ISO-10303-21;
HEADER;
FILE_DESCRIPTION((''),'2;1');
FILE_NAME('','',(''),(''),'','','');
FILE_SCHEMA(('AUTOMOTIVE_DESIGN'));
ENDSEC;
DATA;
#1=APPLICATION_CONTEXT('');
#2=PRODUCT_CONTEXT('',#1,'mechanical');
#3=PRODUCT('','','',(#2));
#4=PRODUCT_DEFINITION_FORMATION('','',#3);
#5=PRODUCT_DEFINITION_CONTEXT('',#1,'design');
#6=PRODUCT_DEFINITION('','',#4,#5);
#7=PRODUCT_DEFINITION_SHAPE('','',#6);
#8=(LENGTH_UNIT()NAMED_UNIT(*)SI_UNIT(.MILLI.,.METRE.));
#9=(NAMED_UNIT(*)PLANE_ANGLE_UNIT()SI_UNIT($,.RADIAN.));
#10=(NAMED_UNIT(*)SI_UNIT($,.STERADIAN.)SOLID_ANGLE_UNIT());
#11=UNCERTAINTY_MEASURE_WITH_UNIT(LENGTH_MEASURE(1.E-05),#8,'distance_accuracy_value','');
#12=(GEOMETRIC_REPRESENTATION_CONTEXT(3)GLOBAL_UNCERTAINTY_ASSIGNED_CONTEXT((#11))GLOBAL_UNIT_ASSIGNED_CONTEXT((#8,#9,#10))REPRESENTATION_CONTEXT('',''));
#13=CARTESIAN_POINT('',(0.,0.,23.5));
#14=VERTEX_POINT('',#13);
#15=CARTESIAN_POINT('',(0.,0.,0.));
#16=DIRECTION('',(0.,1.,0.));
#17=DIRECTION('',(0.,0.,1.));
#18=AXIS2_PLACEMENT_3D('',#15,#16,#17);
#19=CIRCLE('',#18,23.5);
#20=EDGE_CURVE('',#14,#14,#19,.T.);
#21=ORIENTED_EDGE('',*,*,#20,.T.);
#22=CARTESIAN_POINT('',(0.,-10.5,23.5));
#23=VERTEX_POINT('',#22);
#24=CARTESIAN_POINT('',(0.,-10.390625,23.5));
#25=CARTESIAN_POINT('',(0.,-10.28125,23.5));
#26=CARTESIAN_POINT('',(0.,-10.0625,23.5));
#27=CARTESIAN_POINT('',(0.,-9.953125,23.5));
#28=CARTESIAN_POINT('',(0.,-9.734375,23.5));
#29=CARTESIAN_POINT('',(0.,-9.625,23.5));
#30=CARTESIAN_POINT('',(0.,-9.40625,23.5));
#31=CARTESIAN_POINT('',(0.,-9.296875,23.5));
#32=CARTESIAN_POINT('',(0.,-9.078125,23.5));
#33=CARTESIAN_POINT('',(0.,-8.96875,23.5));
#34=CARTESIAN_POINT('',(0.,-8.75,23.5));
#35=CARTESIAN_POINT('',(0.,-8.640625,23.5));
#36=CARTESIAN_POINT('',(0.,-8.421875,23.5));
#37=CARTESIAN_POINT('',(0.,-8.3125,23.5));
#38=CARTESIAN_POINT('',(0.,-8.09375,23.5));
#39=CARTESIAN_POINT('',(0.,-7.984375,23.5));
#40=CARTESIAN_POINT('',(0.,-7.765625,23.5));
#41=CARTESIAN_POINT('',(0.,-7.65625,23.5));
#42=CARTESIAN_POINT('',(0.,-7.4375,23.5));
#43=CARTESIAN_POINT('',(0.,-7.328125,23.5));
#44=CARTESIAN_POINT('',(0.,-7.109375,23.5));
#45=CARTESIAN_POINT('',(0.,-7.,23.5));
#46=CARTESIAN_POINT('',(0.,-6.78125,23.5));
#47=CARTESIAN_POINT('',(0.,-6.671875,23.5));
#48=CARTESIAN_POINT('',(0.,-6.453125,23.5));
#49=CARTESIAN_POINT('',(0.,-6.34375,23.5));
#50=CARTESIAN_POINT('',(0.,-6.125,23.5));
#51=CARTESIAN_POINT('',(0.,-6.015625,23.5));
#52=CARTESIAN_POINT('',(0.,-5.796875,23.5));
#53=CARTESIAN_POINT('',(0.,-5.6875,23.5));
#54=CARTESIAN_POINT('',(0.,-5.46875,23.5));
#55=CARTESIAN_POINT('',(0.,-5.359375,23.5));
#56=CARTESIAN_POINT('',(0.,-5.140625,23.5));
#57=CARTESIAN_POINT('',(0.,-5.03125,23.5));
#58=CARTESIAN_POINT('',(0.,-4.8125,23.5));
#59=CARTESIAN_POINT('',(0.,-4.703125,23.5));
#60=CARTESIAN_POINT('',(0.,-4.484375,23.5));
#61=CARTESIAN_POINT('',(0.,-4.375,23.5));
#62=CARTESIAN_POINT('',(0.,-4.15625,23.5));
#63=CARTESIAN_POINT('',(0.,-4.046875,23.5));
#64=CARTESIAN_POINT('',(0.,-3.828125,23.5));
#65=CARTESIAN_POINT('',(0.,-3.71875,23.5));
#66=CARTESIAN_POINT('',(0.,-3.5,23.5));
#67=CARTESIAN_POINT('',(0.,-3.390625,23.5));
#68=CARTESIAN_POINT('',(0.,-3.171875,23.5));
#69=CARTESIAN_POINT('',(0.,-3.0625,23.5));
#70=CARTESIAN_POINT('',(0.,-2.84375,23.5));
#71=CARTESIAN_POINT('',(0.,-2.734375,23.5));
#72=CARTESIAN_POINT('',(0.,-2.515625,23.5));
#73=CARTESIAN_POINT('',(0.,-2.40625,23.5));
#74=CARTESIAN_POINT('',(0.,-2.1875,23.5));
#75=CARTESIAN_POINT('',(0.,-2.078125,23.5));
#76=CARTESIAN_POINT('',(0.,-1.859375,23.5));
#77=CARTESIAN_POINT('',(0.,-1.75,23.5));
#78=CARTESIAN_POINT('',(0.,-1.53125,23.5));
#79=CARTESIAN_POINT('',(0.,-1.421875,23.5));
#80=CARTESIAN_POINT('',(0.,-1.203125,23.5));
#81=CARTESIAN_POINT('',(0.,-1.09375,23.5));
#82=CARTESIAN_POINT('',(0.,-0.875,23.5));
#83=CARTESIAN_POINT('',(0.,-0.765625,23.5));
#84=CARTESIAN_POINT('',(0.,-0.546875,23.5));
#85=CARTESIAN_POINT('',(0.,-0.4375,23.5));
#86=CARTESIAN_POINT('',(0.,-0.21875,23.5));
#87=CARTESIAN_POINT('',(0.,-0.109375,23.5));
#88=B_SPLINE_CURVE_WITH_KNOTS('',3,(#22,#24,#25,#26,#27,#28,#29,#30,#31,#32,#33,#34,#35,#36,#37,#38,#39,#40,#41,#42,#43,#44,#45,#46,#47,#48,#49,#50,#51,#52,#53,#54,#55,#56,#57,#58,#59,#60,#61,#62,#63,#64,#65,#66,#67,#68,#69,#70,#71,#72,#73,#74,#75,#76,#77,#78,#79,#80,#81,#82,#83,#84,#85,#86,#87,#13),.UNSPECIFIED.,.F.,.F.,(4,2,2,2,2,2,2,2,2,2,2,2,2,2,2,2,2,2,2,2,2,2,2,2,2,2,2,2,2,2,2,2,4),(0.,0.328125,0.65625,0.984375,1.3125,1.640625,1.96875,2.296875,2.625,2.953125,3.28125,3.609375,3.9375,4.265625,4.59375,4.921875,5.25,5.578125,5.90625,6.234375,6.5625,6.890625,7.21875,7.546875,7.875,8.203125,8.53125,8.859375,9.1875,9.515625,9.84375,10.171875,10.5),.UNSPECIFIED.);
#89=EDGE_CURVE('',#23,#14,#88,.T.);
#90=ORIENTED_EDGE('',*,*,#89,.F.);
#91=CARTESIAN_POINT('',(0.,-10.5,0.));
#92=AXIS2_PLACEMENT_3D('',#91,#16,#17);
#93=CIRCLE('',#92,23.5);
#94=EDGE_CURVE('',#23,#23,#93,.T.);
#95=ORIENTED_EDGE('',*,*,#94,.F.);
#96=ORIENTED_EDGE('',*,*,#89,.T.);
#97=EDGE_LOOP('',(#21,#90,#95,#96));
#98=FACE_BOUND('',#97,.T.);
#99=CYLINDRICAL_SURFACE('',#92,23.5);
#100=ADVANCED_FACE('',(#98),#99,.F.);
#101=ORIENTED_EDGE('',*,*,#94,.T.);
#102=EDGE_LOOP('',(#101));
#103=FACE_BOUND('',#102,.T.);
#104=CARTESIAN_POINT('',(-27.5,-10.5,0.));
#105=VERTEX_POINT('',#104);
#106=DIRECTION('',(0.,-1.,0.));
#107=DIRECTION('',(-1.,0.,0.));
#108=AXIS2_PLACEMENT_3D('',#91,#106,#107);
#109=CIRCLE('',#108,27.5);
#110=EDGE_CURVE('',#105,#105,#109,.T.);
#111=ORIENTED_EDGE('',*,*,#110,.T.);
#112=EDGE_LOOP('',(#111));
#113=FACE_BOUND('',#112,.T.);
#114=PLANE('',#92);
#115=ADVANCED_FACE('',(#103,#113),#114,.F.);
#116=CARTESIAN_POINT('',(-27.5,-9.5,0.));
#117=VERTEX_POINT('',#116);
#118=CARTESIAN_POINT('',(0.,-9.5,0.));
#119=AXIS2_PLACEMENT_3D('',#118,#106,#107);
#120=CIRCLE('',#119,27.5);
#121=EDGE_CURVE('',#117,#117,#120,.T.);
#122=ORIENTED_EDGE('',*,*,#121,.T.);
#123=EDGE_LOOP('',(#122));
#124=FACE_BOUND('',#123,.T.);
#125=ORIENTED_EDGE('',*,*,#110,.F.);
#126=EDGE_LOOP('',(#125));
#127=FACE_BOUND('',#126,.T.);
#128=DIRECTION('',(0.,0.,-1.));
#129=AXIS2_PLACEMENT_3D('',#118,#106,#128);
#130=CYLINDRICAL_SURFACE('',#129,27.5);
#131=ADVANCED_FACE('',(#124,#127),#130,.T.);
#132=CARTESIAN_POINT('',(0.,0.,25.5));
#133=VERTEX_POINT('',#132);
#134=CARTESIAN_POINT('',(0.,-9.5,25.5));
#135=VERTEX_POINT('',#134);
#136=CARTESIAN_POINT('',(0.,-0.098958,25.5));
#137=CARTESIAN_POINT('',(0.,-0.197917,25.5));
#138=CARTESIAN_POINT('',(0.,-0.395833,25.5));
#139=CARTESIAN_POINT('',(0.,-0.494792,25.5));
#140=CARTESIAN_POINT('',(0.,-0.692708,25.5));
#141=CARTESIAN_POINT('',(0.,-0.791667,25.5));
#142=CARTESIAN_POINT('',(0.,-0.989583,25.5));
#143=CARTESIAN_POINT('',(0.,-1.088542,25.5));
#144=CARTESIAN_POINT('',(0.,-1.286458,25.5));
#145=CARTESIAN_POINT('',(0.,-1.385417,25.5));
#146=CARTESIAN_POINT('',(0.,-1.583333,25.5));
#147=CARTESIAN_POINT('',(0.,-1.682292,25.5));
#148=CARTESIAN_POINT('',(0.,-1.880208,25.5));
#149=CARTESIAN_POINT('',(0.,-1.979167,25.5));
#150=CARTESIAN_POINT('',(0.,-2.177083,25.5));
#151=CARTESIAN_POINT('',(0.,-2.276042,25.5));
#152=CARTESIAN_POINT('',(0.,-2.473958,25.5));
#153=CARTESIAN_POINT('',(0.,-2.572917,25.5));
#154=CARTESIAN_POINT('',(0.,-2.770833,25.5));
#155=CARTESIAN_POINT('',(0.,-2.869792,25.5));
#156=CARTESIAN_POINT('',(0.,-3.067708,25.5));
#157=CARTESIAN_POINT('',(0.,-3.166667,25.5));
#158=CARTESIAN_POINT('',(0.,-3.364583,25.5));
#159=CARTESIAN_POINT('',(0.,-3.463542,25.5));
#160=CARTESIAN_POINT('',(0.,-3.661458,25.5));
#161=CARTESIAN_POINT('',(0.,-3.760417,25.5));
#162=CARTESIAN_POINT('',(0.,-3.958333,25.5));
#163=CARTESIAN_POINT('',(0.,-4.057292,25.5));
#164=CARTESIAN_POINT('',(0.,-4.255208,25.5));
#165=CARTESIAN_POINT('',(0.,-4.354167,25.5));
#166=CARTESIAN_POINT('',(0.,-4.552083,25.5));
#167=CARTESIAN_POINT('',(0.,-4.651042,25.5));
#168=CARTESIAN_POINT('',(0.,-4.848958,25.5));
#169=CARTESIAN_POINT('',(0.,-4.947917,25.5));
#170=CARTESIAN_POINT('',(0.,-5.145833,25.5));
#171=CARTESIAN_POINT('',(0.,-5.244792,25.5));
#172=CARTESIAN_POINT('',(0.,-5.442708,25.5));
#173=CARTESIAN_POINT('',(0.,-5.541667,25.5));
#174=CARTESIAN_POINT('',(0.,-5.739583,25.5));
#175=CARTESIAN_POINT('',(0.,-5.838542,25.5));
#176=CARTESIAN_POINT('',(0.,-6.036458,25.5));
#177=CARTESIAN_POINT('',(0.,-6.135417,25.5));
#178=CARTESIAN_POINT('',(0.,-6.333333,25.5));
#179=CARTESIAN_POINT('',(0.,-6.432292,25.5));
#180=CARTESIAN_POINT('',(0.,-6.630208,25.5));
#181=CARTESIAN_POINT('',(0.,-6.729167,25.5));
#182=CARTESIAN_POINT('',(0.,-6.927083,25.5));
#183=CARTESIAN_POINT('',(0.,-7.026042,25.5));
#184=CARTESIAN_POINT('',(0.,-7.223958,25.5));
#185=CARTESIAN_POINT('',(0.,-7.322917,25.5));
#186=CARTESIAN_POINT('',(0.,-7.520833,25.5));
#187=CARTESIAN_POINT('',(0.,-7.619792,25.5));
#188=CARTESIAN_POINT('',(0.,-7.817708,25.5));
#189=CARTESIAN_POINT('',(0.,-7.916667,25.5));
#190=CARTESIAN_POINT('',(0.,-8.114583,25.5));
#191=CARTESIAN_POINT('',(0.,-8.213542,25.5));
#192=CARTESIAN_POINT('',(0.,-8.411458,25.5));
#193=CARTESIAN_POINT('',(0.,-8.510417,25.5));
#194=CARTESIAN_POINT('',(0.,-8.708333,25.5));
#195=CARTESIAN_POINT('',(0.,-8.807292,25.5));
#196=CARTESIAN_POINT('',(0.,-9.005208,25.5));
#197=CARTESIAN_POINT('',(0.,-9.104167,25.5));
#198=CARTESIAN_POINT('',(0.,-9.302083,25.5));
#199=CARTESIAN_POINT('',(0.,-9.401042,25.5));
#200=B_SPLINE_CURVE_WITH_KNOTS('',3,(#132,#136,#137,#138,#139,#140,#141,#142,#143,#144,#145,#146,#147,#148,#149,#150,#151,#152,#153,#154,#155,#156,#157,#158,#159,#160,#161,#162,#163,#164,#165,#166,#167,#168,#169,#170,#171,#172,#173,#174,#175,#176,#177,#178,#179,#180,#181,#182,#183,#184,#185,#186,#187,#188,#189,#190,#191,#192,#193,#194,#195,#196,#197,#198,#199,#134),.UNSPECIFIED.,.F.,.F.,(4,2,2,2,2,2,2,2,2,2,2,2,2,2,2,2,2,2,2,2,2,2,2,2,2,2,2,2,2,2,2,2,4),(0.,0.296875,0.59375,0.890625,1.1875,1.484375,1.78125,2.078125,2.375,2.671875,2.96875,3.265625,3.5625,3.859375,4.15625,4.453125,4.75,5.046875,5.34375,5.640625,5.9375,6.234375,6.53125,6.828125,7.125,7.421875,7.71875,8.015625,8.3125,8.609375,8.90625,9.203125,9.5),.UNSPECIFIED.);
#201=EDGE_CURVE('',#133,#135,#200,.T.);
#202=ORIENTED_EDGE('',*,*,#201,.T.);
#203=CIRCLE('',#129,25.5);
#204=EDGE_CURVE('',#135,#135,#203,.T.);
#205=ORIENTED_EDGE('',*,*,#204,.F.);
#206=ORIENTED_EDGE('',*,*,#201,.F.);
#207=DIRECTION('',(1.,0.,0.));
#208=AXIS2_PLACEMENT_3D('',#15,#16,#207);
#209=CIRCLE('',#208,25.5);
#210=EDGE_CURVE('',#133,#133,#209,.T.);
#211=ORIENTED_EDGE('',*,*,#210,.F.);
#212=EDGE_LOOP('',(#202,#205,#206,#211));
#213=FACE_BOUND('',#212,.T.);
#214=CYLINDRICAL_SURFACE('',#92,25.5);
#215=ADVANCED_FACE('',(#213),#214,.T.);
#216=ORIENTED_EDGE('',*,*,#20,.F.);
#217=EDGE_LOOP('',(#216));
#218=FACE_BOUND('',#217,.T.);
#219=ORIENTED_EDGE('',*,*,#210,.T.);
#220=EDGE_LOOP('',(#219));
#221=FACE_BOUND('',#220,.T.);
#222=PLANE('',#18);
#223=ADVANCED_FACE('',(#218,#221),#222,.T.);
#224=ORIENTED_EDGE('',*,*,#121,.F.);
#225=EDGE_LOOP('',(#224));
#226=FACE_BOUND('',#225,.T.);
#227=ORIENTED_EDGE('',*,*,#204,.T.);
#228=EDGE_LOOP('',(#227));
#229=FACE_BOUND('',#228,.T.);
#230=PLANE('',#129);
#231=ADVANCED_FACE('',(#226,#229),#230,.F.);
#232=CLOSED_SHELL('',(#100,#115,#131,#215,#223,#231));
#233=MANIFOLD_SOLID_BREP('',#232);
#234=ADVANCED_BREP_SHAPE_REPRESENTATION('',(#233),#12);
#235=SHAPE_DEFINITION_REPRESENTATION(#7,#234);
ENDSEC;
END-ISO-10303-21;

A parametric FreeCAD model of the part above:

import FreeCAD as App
import Part
import Sketcher

V = App.Vector
Q = App.Units.Quantity

doc = App.newDocument("Part")
body = doc.addObject("PartDesign::Body", "Body")

sketch1 = body.newObject("Sketcher::SketchObject", "Sketch")
sketch1.AttachmentSupport = (doc.getObject("XZ_Plane"), [""])
sketch1.MapMode = "FlatFace"
sketch1.addGeometry([
    Part.Circle(V(0, 0, 0), V(0, 0, 1), 26),
    Part.Circle(V(0, 0, 0), V(0, 0, 1), 24),
], False)
sketch1.addConstraint([
    Sketcher.Constraint("Coincident", 0, 3, -1, 1),
    Sketcher.Constraint("Coincident", 1, 3, -1, 1),
    Sketcher.Constraint("Diameter", 0, Q("51 mm")),
    Sketcher.Constraint("Diameter", 1, Q("47 mm")),
])
pad1 = body.newObject("PartDesign::Pad", "Pad")
pad1.Profile = sketch1
pad1.Length = 10.5

sketch2 = body.newObject("Sketcher::SketchObject", "Sketch001")
sketch2.AttachmentSupport = (doc.getObject("XZ_Plane"), [""])
sketch2.MapMode = "FlatFace"
sketch2.AttachmentOffset = App.Placement(V(0, 0, 9.5), App.Rotation())
sketch2.addGeometry([
    Part.Circle(V(0, 0, 0), V(0, 0, 1), 28),
    Part.Circle(V(0, 0, 0), V(0, 0, 1), 26),
], False)
sketch2.addConstraint([
    Sketcher.Constraint("Coincident", 0, 3, -1, 1),
    Sketcher.Constraint("Coincident", 1, 3, -1, 1),
    Sketcher.Constraint("Diameter", 0, Q("55 mm")),
    Sketcher.Constraint("Diameter", 1, Q("51 mm")),
])
pad2 = body.newObject("PartDesign::Pad", "Pad001")
pad2.Profile = sketch2
pad2.Length = 1

doc.recompute()
